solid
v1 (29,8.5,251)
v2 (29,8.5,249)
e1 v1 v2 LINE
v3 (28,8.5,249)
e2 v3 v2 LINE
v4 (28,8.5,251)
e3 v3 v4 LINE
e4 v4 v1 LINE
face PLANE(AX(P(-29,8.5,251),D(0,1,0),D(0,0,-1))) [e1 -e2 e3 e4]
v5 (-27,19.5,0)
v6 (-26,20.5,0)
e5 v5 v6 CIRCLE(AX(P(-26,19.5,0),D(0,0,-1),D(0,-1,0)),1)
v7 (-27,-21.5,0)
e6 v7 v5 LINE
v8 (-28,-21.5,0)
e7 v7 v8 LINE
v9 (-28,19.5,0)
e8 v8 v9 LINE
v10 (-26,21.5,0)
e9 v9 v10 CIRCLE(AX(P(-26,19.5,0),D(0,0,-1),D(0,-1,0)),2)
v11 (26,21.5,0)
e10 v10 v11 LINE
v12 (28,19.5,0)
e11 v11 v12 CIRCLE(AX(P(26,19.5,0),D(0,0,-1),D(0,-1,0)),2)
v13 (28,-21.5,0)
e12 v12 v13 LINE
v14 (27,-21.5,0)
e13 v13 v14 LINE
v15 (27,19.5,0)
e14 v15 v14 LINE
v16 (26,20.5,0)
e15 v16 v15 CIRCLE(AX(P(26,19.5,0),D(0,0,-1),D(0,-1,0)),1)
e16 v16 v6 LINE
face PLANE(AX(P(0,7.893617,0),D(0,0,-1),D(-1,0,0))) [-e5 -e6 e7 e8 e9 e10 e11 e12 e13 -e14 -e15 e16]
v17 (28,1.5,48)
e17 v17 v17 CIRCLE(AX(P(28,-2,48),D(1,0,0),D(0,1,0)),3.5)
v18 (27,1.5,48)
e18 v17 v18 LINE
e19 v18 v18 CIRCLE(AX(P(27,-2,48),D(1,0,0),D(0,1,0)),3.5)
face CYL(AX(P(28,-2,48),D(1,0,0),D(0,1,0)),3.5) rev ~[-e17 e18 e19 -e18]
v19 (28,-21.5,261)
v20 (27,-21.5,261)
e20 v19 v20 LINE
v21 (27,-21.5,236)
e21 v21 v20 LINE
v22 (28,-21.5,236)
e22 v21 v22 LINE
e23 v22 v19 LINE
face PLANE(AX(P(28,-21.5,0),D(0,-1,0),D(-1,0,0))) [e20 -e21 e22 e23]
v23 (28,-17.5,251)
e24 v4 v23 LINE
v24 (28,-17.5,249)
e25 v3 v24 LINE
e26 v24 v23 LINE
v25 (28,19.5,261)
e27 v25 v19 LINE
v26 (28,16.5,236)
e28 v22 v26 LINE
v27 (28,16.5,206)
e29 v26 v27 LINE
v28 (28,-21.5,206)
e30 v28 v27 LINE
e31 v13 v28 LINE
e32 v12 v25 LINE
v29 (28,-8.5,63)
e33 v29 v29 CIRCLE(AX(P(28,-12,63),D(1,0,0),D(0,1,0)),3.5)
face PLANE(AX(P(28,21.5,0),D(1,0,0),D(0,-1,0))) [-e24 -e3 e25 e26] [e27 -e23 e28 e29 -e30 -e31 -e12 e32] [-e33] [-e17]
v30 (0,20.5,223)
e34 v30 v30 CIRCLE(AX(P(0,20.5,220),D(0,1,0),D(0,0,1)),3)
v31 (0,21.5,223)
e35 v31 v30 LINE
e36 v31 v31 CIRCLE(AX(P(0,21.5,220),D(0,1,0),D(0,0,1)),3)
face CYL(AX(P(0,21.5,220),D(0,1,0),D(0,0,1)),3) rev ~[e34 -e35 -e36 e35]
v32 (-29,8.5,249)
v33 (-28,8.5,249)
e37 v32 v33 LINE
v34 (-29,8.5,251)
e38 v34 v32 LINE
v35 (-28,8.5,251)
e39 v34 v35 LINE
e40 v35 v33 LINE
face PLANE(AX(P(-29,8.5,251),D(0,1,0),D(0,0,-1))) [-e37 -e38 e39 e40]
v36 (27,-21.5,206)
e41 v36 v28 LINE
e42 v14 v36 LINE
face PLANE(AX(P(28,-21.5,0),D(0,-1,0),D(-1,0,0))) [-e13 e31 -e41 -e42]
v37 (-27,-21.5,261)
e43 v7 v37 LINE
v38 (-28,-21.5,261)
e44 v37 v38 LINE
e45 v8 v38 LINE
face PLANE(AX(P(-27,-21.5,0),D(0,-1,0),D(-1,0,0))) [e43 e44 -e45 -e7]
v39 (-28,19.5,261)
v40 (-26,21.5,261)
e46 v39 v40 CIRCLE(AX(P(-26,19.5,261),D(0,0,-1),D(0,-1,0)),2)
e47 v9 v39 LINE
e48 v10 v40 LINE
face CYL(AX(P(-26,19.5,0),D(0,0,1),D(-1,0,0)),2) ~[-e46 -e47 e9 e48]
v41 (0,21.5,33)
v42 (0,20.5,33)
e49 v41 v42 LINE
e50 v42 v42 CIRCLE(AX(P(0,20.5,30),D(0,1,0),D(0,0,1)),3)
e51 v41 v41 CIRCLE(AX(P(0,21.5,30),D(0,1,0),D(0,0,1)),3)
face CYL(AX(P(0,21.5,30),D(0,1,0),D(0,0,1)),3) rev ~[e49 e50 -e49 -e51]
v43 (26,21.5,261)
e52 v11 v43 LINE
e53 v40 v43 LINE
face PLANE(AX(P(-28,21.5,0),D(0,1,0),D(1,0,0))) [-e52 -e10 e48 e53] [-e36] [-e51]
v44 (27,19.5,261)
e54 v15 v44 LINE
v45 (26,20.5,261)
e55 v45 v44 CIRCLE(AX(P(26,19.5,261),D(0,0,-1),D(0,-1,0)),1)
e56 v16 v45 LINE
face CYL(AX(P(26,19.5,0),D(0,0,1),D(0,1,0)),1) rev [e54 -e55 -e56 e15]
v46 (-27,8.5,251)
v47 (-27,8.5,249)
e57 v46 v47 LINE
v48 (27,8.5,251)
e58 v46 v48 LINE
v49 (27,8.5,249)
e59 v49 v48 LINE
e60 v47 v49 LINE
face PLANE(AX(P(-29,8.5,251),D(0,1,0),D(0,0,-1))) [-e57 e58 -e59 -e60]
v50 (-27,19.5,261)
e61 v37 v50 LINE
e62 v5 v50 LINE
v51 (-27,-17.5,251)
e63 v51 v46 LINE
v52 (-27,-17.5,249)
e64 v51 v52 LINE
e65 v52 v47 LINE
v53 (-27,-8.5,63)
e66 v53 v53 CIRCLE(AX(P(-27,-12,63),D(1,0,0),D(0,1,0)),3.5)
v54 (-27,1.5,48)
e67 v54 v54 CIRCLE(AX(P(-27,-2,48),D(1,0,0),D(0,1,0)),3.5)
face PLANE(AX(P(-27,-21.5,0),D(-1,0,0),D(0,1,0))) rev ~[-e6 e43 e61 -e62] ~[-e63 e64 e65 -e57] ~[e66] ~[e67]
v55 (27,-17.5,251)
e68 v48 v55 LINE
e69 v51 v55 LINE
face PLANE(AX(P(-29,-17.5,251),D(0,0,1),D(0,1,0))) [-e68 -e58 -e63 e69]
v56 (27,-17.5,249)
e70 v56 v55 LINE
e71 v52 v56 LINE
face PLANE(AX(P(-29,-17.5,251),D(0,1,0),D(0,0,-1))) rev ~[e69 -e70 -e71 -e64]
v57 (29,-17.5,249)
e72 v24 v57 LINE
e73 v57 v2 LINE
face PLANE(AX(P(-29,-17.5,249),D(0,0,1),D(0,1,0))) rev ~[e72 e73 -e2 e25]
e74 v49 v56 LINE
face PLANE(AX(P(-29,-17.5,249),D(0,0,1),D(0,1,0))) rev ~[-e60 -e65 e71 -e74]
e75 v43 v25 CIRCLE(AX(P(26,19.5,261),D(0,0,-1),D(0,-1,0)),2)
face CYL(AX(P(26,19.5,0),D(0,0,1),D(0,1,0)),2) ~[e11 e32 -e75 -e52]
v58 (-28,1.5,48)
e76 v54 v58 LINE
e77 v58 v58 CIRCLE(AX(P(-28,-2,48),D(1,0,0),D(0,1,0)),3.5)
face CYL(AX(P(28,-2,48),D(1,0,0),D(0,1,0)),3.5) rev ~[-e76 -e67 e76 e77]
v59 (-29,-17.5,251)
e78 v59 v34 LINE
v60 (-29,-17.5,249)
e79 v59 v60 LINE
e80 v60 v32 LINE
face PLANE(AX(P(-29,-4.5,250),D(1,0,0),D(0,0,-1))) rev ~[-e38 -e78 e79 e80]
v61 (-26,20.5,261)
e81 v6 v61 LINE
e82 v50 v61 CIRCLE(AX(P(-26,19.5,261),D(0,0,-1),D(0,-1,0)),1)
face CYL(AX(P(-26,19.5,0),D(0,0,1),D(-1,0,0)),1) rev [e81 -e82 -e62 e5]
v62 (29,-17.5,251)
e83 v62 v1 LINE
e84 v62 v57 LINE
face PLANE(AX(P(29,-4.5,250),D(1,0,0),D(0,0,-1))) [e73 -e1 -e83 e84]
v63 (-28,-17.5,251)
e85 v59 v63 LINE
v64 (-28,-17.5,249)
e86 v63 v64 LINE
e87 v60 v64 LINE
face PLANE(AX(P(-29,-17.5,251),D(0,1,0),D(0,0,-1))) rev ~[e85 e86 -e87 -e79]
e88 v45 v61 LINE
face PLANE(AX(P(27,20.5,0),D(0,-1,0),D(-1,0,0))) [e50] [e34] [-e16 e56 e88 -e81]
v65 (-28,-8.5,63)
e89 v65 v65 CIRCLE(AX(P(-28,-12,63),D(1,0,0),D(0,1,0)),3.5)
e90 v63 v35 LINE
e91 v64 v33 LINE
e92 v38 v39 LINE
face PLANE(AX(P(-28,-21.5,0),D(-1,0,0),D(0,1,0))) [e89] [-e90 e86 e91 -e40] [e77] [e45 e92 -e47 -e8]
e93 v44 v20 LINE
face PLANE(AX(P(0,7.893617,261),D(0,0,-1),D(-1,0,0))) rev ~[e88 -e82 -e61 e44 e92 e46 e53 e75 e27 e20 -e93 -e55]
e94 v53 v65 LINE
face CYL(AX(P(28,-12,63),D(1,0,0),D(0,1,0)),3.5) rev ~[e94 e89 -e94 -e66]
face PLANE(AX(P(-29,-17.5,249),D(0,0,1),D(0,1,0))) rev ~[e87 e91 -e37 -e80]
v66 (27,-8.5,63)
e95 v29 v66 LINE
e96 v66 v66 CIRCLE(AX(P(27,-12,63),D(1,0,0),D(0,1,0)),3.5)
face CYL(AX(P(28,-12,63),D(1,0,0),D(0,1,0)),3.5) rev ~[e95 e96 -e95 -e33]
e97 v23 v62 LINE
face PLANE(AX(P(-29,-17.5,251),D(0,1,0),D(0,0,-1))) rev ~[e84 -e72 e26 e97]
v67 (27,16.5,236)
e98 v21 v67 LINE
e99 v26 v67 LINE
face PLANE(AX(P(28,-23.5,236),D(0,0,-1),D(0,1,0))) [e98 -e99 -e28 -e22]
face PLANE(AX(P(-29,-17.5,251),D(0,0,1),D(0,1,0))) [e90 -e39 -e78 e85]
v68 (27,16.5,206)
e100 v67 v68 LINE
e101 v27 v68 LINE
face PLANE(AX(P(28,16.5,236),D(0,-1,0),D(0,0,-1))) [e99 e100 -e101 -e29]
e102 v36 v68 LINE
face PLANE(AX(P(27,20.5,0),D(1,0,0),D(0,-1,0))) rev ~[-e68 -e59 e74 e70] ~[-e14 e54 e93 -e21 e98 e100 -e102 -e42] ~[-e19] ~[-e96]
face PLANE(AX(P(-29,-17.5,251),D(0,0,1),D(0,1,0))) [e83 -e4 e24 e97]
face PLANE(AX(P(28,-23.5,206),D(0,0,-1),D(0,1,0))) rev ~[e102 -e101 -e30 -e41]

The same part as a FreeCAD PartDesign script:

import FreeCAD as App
import Part
import Sketcher
from FreeCAD import Vector
Q = App.Units.Quantity


def edges_at(feature, points):
    """Names of the edges that pass closest to the given points."""
    edges = feature.Shape.Edges
    near = lambda p: min(range(len(edges)), key=lambda i: edges[i].distToShape(Part.Vertex(*p))[0])
    return sorted({f"Edge{near(p) + 1}" for p in points})


def add_polygon(sketch, points):
    """Adds a closed chain of lines whose ends are joined by coincident constraints."""
    first, n = sketch.GeometryCount, len(points)
    for a, b in zip(points, points[1:] + points[:1]):
        sketch.addGeometry(Part.LineSegment(App.Vector(*a, 0), App.Vector(*b, 0)), False)
    for i in range(n):
        sketch.addConstraint(Sketcher.Constraint("Coincident", first + i, 2, first + (i + 1) % n, 1))

doc = App.newDocument("Part")
params = doc.addObject("Spreadsheet::Sheet", "Params")
for row, (alias, value) in enumerate([
    ("sketch1_width", "1 mm"),
    ("sketch1_width2", "56 mm"),
    ("sketch1_height", "42 mm"),
    ("sketch1_height2", "43 mm"),
    ("pad1_length", "261 mm"),
    ("fillet_radius", "2 mm"),
    ("fillet2_radius", "1 mm"),
    ("sketch2_width", "26 mm"),
    ("sketch2_height", "2 mm"),
    ("pad2_length", "56 mm"),
    ("pad2_length2", "2 mm"),
    ("sketch3_diameter", "6 mm"),
    ("pocket1_length", "11 mm"),
    ("sketch4_width", "40 mm"),
    ("sketch4_height", "30 mm"),
    ("pocket2_length", "10 mm"),
    ("sketch5_diameter", "7 mm"),
    ("pocket3_length", "76 mm"),
], start=1):
    params.set(f"A{row}", alias)
    params.set(f"B{row}", "=" + value)
    params.setAlias(f"B{row}", alias)

body = doc.addObject("PartDesign::Body", "Body")

# Sketch on XY plane
sketch1 = body.newObject("Sketcher::SketchObject", "Sketch")
sketch1.AttachmentSupport = (doc.getObject("XY_Plane"), [""])
sketch1.MapMode = "FlatFace"
add_polygon(sketch1, [(27, 20.5), (27, -21.5), (28, -21.5), (28, 21.5), (-28, 21.5), (-28, -21.5), (-27, -21.5), (-27, 20.5)])  # lines 0-7
sketch1.addConstraint(Sketcher.Constraint("Vertical", 0))
sketch1.addConstraint(Sketcher.Constraint("Horizontal", 1))
sketch1.addConstraint(Sketcher.Constraint("Vertical", 2))
sketch1.addConstraint(Sketcher.Constraint("Horizontal", 3))
sketch1.addConstraint(Sketcher.Constraint("Vertical", 4))
sketch1.addConstraint(Sketcher.Constraint("Horizontal", 5))
sketch1.addConstraint(Sketcher.Constraint("Vertical", 6))
sketch1.addConstraint(Sketcher.Constraint("Horizontal", 7))
sketch1.addConstraint(Sketcher.Constraint("Symmetric", 1, 2, 3, 2, -1, 1))
sketch1.addConstraint(Sketcher.Constraint("Symmetric", 0, 2, 5, 2, -2))
sketch1.addConstraint(Sketcher.Constraint("DistanceX", 1, 1, 1, 2, Q("1 mm")))
sketch1.addConstraint(Sketcher.Constraint("DistanceX", 3, 2, 3, 1, Q("56 mm")))
sketch1.addConstraint(Sketcher.Constraint("DistanceY", 0, 2, 0, 1, Q("42 mm")))
sketch1.addConstraint(Sketcher.Constraint("DistanceY", 2, 1, 2, 2, Q("43 mm")))
sketch1.setExpression("Constraints[18]", "Params.sketch1_width")
sketch1.setExpression("Constraints[19]", "Params.sketch1_width2")
sketch1.setExpression("Constraints[20]", "Params.sketch1_height")
sketch1.setExpression("Constraints[21]", "Params.sketch1_height2")
pad1 = body.newObject("PartDesign::Pad", "Pad")
pad1.Profile = sketch1
pad1.setExpression("Length", "Params.pad1_length")
doc.recompute()

fillet = body.newObject("PartDesign::Fillet", "Fillet")
fillet.Base = (pad1, edges_at(pad1, [(-28, 21.5, 130.5), (28, 21.5, 130.5)]))
fillet.setExpression("Radius", "Params.fillet_radius")
doc.recompute()

fillet2 = body.newObject("PartDesign::Fillet", "Fillet001")
fillet2.Base = (fillet, edges_at(fillet, [(27, 20.5, 130.5), (-27, 20.5, 130.5)]))
fillet2.setExpression("Radius", "Params.fillet2_radius")

# Sketch on YZ plane
sketch2 = body.newObject("Sketcher::SketchObject", "Sketch001")
sketch2.AttachmentSupport = (doc.getObject("YZ_Plane"), [""])
sketch2.MapMode = "FlatFace"
sketch2.AttachmentOffset = App.Placement(Vector(0, 0, -27), App.Rotation())
add_polygon(sketch2, [(8.5, 251), (-17.5, 251), (-17.5, 249), (8.5, 249)])  # lines 0-3
sketch2.addConstraint(Sketcher.Constraint("Horizontal", 0))
sketch2.addConstraint(Sketcher.Constraint("Vertical", 1))
sketch2.addConstraint(Sketcher.Constraint("Horizontal", 2))
sketch2.addConstraint(Sketcher.Constraint("Vertical", 3))
sketch2.addConstraint(Sketcher.Constraint("DistanceX", 0, 2, 0, 1, Q("26 mm")))
sketch2.addConstraint(Sketcher.Constraint("DistanceY", 1, 2, 1, 1, Q("2 mm")))
sketch2.addConstraint(Sketcher.Constraint("DistanceY", -1, 1, 0, 2, Q("251 mm")))
sketch2.addConstraint(Sketcher.Constraint("DistanceX", 0, 2, -1, 1, Q("17.5 mm")))
sketch2.setExpression("Constraints[8]", "Params.sketch2_width")
sketch2.setExpression("Constraints[9]", "Params.sketch2_height")
pad2 = body.newObject("PartDesign::Pad", "Pad001")
pad2.Profile = sketch2
pad2.Type = "TwoLengths"
pad2.setExpression("Length", "Params.pad2_length")
pad2.setExpression("Length2", "Params.pad2_length2")

# Sketch on XZ plane
sketch3 = body.newObject("Sketcher::SketchObject", "Sketch002")
sketch3.AttachmentSupport = (doc.getObject("XZ_Plane"), [""])
sketch3.MapMode = "FlatFace"
sketch3.AttachmentOffset = App.Placement(Vector(0, 0, -21.5), App.Rotation())
sketch3.addGeometry(Part.Circle(Vector(0, 30, 0), Vector(0, 0, 1), 3), False)
sketch3.addGeometry(Part.Circle(Vector(0, 220, 0), Vector(0, 0, 1), 3), False)
sketch3.addConstraint(Sketcher.Constraint("Equal", 0, 1))
sketch3.addConstraint(Sketcher.Constraint("PointOnObject", 0, 3, -2))
sketch3.addConstraint(Sketcher.Constraint("PointOnObject", 1, 3, -2))
sketch3.addConstraint(Sketcher.Constraint("Diameter", 0, Q("6 mm")))
sketch3.addConstraint(Sketcher.Constraint("DistanceY", -1, 1, 0, 3, Q("30 mm")))
sketch3.addConstraint(Sketcher.Constraint("DistanceY", -1, 1, 1, 3, Q("220 mm")))
sketch3.setExpression("Constraints[3]", "Params.sketch3_diameter")
pocket1 = body.newObject("PartDesign::Pocket", "Pocket")
pocket1.Profile = sketch3
pocket1.setExpression("Length", "Params.pocket1_length")
pocket1.Reversed = True

# Sketch on YZ plane
sketch4 = body.newObject("Sketcher::SketchObject", "Sketch003")
sketch4.AttachmentSupport = (doc.getObject("YZ_Plane"), [""])
sketch4.MapMode = "FlatFace"
sketch4.AttachmentOffset = App.Placement(Vector(0, 0, 28), App.Rotation())
add_polygon(sketch4, [(16.5, 236), (-23.5, 236), (-23.5, 206), (16.5, 206)])  # lines 0-3
sketch4.addConstraint(Sketcher.Constraint("Horizontal", 0))
sketch4.addConstraint(Sketcher.Constraint("Vertical", 1))
sketch4.addConstraint(Sketcher.Constraint("Horizontal", 2))
sketch4.addConstraint(Sketcher.Constraint("Vertical", 3))
sketch4.addConstraint(Sketcher.Constraint("DistanceX", 0, 2, 0, 1, Q("40 mm")))
sketch4.addConstraint(Sketcher.Constraint("DistanceY", 1, 2, 1, 1, Q("30 mm")))
sketch4.addConstraint(Sketcher.Constraint("DistanceY", -1, 1, 0, 2, Q("236 mm")))
sketch4.addConstraint(Sketcher.Constraint("DistanceX", 0, 2, -1, 1, Q("23.5 mm")))
sketch4.setExpression("Constraints[8]", "Params.sketch4_width")
sketch4.setExpression("Constraints[9]", "Params.sketch4_height")
pocket2 = body.newObject("PartDesign::Pocket", "Pocket001")
pocket2.Profile = sketch4
pocket2.setExpression("Length", "Params.pocket2_length")

# Sketch on YZ plane
sketch5 = body.newObject("Sketcher::SketchObject", "Sketch004")
sketch5.AttachmentSupport = (doc.getObject("YZ_Plane"), [""])
sketch5.MapMode = "FlatFace"
sketch5.AttachmentOffset = App.Placement(Vector(0, 0, 28), App.Rotation())
sketch5.addGeometry(Part.Circle(Vector(-2, 48, 0), Vector(0, 0, 1), 3.5), False)
sketch5.addGeometry(Part.Circle(Vector(-12, 63, 0), Vector(0, 0, 1), 3.5), False)
sketch5.addConstraint(Sketcher.Constraint("Equal", 0, 1))
sketch5.addConstraint(Sketcher.Constraint("Diameter", 0, Q("7 mm")))
sketch5.addConstraint(Sketcher.Constraint("DistanceX", 0, 3, -1, 1, Q("2 mm")))
sketch5.addConstraint(Sketcher.Constraint("DistanceY", -1, 1, 0, 3, Q("48 mm")))
sketch5.addConstraint(Sketcher.Constraint("DistanceX", 1, 3, -1, 1, Q("12 mm")))
sketch5.addConstraint(Sketcher.Constraint("DistanceY", -1, 1, 1, 3, Q("63 mm")))
sketch5.setExpression("Constraints[1]", "Params.sketch5_diameter")
pocket3 = body.newObject("PartDesign::Pocket", "Pocket002")
pocket3.Profile = sketch5
pocket3.setExpression("Length", "Params.pocket3_length")

doc.recompute()
